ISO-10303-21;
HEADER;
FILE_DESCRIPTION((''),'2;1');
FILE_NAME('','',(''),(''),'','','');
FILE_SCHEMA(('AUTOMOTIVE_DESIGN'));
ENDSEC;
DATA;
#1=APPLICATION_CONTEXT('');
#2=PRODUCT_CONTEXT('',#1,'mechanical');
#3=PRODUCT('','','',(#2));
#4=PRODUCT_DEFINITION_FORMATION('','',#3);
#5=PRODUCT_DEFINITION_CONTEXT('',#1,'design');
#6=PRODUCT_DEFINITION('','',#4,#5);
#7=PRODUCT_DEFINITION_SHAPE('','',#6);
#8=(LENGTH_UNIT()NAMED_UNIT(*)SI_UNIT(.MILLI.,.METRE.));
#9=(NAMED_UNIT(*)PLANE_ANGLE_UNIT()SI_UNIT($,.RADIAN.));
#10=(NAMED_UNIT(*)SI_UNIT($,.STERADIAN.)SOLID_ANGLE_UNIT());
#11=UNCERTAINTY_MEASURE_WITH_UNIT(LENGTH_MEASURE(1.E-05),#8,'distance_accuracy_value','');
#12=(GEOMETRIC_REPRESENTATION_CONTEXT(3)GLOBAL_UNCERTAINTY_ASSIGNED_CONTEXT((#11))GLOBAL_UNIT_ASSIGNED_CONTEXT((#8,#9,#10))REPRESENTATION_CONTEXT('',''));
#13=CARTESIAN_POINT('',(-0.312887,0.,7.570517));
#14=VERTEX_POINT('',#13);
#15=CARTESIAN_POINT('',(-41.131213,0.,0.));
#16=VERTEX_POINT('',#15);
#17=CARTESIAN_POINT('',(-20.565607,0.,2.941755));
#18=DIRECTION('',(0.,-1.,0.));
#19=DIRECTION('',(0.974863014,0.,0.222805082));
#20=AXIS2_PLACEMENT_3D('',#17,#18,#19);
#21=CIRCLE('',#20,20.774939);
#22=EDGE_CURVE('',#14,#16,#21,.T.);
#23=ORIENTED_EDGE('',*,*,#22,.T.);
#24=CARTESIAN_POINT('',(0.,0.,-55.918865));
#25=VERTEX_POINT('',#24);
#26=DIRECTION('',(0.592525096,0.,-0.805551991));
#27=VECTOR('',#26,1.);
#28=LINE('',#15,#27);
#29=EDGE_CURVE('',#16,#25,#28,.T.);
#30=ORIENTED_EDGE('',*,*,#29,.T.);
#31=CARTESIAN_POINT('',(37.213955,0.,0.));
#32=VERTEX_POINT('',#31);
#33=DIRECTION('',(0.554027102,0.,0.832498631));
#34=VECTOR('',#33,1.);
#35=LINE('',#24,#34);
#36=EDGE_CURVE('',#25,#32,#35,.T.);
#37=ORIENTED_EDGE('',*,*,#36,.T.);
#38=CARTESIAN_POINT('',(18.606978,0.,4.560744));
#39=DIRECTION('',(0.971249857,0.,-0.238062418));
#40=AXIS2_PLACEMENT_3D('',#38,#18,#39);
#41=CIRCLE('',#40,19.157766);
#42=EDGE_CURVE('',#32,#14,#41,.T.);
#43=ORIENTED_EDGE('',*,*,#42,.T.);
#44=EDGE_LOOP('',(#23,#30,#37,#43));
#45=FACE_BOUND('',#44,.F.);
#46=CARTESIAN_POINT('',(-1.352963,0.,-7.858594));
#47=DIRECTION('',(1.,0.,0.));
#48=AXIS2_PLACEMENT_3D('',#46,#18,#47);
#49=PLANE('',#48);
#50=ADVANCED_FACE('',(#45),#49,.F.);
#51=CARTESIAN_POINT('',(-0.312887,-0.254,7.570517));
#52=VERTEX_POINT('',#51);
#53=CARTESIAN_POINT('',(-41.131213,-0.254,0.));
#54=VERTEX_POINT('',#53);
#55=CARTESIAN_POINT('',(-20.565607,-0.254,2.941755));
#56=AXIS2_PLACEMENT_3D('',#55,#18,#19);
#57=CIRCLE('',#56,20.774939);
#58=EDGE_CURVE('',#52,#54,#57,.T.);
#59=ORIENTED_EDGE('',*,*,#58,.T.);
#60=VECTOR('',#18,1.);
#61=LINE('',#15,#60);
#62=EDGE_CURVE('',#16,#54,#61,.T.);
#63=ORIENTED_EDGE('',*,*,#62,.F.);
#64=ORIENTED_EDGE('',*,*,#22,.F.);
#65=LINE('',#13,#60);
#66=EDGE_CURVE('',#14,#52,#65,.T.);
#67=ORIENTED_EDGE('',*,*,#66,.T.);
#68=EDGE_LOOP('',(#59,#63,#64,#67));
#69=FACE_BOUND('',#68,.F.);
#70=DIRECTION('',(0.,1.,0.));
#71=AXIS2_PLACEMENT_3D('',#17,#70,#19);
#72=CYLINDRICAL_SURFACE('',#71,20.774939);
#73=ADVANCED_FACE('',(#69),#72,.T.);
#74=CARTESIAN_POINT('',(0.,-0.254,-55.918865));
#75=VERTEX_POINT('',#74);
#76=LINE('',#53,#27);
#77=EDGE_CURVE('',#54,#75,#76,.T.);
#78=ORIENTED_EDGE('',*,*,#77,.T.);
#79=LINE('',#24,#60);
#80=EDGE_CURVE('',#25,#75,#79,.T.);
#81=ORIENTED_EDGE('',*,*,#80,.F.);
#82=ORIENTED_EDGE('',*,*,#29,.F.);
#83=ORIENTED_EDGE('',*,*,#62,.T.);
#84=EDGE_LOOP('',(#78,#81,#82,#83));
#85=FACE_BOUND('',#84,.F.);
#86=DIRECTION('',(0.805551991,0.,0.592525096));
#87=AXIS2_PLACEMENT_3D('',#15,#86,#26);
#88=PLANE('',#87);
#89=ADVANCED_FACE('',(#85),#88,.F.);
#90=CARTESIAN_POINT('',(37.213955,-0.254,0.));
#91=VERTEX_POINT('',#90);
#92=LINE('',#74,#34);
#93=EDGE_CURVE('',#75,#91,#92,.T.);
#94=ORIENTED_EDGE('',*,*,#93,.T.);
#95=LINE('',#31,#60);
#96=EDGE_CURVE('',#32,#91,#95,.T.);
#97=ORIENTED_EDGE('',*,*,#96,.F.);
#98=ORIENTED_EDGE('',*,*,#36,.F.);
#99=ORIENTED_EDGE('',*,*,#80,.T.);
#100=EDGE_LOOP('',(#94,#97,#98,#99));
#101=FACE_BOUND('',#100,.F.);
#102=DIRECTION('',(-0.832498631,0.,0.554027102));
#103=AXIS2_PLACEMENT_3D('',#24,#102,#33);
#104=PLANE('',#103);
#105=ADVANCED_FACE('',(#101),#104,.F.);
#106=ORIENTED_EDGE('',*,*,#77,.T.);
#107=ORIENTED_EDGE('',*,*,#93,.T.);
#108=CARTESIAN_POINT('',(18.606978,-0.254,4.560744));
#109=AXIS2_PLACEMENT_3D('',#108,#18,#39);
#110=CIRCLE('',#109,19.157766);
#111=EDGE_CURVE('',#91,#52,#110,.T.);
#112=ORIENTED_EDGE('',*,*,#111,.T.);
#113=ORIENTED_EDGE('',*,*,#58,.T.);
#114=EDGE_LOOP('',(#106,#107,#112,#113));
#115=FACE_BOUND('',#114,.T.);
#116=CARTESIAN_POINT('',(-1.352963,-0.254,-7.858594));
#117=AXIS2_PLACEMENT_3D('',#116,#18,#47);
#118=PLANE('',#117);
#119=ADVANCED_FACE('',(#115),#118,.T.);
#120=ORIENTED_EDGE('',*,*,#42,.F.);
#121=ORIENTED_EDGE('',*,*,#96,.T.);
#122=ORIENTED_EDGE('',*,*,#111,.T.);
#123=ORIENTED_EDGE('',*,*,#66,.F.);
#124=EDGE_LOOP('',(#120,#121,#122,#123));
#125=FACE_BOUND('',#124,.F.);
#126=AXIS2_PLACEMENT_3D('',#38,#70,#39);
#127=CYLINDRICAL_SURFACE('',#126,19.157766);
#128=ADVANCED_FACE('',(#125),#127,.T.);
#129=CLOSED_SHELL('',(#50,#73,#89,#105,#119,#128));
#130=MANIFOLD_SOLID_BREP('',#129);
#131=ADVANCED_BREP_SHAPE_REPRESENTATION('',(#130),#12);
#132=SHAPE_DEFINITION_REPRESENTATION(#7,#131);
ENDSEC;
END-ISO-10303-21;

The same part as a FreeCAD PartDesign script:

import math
import FreeCAD as App
import Part
import Sketcher
Q = App.Units.Quantity

doc = App.newDocument("Part")
body = doc.addObject("PartDesign::Body", "Body")

sketch1 = body.newObject("Sketcher::SketchObject", "Sketch")
sketch1.AttachmentSupport = (doc.getObject("XZ_Plane"), [""])
sketch1.MapMode = "FlatFace"
sketch1.addGeometry([
    Part.ArcOfCircle(Part.Circle(App.Vector(19, 5, 0), App.Vector(0, 0, 1), 19), math.radians(-14), math.radians(171)),
    Part.ArcOfCircle(Part.Circle(App.Vector(-21, 3, 0), App.Vector(0, 0, 1), 21), math.radians(13), math.radians(188)),
    Part.LineSegment(App.Vector(-41, 0, 0), App.Vector(0, -56, 0)),
    Part.LineSegment(App.Vector(0, -56, 0), App.Vector(37, 0, 0)),
], False)
sketch1.addConstraint([
    Sketcher.Constraint("Coincident", 0, 2, 1, 1),
    Sketcher.Constraint("Coincident", 1, 2, 2, 1),
    Sketcher.Constraint("Coincident", 2, 2, 3, 1),
    Sketcher.Constraint("Coincident", 3, 2, 0, 1),
    Sketcher.Constraint("PointOnObject", 1, 2, -1),
    Sketcher.Constraint("PointOnObject", 2, 2, -2),
    Sketcher.Constraint("PointOnObject", 3, 2, -1),
    Sketcher.Constraint("Radius", 1, 20.774939),
    Sketcher.Constraint("Radius", 0, 19.157766),
    Sketcher.Constraint("Distance", 2, 69.416829),
    Sketcher.Constraint("Distance", 3, 67.169918),
    Sketcher.Constraint("DistanceY", 1, 3, 0, 3, 1.618989),
    Sketcher.Constraint("DistanceX", 1, 3, 0, 2, 20.25272),
    Sketcher.Constraint("DistanceX", 1, 2, 0, 3, 59.738191),
])
pad1 = body.newObject("PartDesign::Pad", "Pad")
pad1.Profile = sketch1
pad1.Length = Q("0.01 in")

doc.recompute()
